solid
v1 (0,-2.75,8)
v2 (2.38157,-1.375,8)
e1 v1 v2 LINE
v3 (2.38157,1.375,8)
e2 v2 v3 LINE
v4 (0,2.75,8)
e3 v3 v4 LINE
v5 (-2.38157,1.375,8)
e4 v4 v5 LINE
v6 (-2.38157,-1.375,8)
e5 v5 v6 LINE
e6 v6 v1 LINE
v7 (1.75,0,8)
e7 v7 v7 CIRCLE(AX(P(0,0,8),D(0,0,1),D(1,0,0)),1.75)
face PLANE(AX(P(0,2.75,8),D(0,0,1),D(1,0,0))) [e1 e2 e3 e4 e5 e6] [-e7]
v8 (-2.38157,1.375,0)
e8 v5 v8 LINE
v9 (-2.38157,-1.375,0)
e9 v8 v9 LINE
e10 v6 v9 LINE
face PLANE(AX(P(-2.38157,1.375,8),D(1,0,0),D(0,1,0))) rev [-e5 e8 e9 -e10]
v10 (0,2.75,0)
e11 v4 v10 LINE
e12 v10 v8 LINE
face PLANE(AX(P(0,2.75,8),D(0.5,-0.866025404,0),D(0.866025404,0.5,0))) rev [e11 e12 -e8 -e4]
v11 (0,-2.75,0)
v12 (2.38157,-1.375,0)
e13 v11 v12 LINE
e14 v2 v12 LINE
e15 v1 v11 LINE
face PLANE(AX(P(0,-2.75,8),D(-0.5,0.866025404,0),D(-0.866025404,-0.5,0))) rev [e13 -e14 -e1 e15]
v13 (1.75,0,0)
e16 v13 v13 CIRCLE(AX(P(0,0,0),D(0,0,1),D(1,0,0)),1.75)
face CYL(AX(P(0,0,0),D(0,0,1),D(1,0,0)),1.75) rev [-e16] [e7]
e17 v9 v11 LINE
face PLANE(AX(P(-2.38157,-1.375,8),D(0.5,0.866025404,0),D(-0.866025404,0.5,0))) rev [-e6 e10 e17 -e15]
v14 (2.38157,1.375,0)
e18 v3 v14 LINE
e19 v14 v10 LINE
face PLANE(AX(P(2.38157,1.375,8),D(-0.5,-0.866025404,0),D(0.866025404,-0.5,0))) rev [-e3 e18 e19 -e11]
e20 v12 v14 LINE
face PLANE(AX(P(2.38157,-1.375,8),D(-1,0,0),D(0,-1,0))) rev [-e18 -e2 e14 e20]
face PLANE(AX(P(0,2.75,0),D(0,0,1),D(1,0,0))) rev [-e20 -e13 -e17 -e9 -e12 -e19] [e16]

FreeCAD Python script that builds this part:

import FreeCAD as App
import Part
import Sketcher
Q = App.Units.Quantity

doc = App.newDocument("Part")
body = doc.addObject("PartDesign::Body", "Body")

sketch1 = doc.addObject("Sketcher::SketchObject", "Sketch")
body.addObject(sketch1)
sketch1.AttachmentSupport = (doc.XY_Plane, [""])
sketch1.MapMode = "FlatFace"
sketch1.addGeometry([
    Part.LineSegment(App.Vector(0, 2.8, 0), App.Vector(-2.4, 1.4, 0)),
    Part.LineSegment(App.Vector(-2.4, 1.4, 0), App.Vector(-2.4, -1.4, 0)),
    Part.LineSegment(App.Vector(-2.4, -1.4, 0), App.Vector(0, -2.8, 0)),
    Part.LineSegment(App.Vector(0, -2.8, 0), App.Vector(2.4, -1.4, 0)),
    Part.LineSegment(App.Vector(2.4, -1.4, 0), App.Vector(2.4, 1.4, 0)),
    Part.LineSegment(App.Vector(2.4, 1.4, 0), App.Vector(0, 2.8, 0)),
], False)
sketch1.addConstraint([
    Sketcher.Constraint("Coincident", 0, 2, 1, 1),
    Sketcher.Constraint("Coincident", 1, 2, 2, 1),
    Sketcher.Constraint("Coincident", 2, 2, 3, 1),
    Sketcher.Constraint("Coincident", 3, 2, 4, 1),
    Sketcher.Constraint("Coincident", 4, 2, 5, 1),
    Sketcher.Constraint("Coincident", 5, 2, 0, 1),
    Sketcher.Constraint("Vertical", 1),
    Sketcher.Constraint("Vertical", 4),
    Sketcher.Constraint("Symmetric", 0, 2, 3, 2, -1, 1),
    Sketcher.Constraint("Symmetric", 2, 2, 5, 2, -1, 1),
    Sketcher.Constraint("PointOnObject", 2, 2, -2),
    Sketcher.Constraint("Parallel", 2, 5),
    Sketcher.Constraint("Horizontal", 1, 2, 3, 2),
    Sketcher.Constraint("Angle", 0, Q("-150 deg")),
    Sketcher.Constraint("DistanceY", 1, 2, 1, 1, 2.75),
    Sketcher.Constraint("DistanceY", 2, 2, 5, 2, 5.5),
])
pad1 = doc.addObject("PartDesign::Pad", "Pad")
body.addObject(pad1)
pad1.Profile = sketch1
pad1.Length = 8

sketch2 = doc.addObject("Sketcher::SketchObject", "Sketch001")
body.addObject(sketch2)
sketch2.AttachmentSupport = (doc.XY_Plane, [""])
sketch2.MapMode = "FlatFace"
sketch2.AttachmentOffset = App.Placement(App.Vector(0, 0, 8), App.Rotation())
sketch2.addGeometry(Part.Circle(App.Vector(0, 0, 0), App.Vector(0, 0, 1), 1.8), False)
sketch2.addConstraint([
    Sketcher.Constraint("Coincident", 0, 3, -1, 1),
    Sketcher.Constraint("Diameter", 0, 3.5),
])
pocket1 = doc.addObject("PartDesign::Pocket", "Pocket")
body.addObject(pocket1)
pocket1.Profile = sketch2
pocket1.Type = "ThroughAll"

doc.recompute()
